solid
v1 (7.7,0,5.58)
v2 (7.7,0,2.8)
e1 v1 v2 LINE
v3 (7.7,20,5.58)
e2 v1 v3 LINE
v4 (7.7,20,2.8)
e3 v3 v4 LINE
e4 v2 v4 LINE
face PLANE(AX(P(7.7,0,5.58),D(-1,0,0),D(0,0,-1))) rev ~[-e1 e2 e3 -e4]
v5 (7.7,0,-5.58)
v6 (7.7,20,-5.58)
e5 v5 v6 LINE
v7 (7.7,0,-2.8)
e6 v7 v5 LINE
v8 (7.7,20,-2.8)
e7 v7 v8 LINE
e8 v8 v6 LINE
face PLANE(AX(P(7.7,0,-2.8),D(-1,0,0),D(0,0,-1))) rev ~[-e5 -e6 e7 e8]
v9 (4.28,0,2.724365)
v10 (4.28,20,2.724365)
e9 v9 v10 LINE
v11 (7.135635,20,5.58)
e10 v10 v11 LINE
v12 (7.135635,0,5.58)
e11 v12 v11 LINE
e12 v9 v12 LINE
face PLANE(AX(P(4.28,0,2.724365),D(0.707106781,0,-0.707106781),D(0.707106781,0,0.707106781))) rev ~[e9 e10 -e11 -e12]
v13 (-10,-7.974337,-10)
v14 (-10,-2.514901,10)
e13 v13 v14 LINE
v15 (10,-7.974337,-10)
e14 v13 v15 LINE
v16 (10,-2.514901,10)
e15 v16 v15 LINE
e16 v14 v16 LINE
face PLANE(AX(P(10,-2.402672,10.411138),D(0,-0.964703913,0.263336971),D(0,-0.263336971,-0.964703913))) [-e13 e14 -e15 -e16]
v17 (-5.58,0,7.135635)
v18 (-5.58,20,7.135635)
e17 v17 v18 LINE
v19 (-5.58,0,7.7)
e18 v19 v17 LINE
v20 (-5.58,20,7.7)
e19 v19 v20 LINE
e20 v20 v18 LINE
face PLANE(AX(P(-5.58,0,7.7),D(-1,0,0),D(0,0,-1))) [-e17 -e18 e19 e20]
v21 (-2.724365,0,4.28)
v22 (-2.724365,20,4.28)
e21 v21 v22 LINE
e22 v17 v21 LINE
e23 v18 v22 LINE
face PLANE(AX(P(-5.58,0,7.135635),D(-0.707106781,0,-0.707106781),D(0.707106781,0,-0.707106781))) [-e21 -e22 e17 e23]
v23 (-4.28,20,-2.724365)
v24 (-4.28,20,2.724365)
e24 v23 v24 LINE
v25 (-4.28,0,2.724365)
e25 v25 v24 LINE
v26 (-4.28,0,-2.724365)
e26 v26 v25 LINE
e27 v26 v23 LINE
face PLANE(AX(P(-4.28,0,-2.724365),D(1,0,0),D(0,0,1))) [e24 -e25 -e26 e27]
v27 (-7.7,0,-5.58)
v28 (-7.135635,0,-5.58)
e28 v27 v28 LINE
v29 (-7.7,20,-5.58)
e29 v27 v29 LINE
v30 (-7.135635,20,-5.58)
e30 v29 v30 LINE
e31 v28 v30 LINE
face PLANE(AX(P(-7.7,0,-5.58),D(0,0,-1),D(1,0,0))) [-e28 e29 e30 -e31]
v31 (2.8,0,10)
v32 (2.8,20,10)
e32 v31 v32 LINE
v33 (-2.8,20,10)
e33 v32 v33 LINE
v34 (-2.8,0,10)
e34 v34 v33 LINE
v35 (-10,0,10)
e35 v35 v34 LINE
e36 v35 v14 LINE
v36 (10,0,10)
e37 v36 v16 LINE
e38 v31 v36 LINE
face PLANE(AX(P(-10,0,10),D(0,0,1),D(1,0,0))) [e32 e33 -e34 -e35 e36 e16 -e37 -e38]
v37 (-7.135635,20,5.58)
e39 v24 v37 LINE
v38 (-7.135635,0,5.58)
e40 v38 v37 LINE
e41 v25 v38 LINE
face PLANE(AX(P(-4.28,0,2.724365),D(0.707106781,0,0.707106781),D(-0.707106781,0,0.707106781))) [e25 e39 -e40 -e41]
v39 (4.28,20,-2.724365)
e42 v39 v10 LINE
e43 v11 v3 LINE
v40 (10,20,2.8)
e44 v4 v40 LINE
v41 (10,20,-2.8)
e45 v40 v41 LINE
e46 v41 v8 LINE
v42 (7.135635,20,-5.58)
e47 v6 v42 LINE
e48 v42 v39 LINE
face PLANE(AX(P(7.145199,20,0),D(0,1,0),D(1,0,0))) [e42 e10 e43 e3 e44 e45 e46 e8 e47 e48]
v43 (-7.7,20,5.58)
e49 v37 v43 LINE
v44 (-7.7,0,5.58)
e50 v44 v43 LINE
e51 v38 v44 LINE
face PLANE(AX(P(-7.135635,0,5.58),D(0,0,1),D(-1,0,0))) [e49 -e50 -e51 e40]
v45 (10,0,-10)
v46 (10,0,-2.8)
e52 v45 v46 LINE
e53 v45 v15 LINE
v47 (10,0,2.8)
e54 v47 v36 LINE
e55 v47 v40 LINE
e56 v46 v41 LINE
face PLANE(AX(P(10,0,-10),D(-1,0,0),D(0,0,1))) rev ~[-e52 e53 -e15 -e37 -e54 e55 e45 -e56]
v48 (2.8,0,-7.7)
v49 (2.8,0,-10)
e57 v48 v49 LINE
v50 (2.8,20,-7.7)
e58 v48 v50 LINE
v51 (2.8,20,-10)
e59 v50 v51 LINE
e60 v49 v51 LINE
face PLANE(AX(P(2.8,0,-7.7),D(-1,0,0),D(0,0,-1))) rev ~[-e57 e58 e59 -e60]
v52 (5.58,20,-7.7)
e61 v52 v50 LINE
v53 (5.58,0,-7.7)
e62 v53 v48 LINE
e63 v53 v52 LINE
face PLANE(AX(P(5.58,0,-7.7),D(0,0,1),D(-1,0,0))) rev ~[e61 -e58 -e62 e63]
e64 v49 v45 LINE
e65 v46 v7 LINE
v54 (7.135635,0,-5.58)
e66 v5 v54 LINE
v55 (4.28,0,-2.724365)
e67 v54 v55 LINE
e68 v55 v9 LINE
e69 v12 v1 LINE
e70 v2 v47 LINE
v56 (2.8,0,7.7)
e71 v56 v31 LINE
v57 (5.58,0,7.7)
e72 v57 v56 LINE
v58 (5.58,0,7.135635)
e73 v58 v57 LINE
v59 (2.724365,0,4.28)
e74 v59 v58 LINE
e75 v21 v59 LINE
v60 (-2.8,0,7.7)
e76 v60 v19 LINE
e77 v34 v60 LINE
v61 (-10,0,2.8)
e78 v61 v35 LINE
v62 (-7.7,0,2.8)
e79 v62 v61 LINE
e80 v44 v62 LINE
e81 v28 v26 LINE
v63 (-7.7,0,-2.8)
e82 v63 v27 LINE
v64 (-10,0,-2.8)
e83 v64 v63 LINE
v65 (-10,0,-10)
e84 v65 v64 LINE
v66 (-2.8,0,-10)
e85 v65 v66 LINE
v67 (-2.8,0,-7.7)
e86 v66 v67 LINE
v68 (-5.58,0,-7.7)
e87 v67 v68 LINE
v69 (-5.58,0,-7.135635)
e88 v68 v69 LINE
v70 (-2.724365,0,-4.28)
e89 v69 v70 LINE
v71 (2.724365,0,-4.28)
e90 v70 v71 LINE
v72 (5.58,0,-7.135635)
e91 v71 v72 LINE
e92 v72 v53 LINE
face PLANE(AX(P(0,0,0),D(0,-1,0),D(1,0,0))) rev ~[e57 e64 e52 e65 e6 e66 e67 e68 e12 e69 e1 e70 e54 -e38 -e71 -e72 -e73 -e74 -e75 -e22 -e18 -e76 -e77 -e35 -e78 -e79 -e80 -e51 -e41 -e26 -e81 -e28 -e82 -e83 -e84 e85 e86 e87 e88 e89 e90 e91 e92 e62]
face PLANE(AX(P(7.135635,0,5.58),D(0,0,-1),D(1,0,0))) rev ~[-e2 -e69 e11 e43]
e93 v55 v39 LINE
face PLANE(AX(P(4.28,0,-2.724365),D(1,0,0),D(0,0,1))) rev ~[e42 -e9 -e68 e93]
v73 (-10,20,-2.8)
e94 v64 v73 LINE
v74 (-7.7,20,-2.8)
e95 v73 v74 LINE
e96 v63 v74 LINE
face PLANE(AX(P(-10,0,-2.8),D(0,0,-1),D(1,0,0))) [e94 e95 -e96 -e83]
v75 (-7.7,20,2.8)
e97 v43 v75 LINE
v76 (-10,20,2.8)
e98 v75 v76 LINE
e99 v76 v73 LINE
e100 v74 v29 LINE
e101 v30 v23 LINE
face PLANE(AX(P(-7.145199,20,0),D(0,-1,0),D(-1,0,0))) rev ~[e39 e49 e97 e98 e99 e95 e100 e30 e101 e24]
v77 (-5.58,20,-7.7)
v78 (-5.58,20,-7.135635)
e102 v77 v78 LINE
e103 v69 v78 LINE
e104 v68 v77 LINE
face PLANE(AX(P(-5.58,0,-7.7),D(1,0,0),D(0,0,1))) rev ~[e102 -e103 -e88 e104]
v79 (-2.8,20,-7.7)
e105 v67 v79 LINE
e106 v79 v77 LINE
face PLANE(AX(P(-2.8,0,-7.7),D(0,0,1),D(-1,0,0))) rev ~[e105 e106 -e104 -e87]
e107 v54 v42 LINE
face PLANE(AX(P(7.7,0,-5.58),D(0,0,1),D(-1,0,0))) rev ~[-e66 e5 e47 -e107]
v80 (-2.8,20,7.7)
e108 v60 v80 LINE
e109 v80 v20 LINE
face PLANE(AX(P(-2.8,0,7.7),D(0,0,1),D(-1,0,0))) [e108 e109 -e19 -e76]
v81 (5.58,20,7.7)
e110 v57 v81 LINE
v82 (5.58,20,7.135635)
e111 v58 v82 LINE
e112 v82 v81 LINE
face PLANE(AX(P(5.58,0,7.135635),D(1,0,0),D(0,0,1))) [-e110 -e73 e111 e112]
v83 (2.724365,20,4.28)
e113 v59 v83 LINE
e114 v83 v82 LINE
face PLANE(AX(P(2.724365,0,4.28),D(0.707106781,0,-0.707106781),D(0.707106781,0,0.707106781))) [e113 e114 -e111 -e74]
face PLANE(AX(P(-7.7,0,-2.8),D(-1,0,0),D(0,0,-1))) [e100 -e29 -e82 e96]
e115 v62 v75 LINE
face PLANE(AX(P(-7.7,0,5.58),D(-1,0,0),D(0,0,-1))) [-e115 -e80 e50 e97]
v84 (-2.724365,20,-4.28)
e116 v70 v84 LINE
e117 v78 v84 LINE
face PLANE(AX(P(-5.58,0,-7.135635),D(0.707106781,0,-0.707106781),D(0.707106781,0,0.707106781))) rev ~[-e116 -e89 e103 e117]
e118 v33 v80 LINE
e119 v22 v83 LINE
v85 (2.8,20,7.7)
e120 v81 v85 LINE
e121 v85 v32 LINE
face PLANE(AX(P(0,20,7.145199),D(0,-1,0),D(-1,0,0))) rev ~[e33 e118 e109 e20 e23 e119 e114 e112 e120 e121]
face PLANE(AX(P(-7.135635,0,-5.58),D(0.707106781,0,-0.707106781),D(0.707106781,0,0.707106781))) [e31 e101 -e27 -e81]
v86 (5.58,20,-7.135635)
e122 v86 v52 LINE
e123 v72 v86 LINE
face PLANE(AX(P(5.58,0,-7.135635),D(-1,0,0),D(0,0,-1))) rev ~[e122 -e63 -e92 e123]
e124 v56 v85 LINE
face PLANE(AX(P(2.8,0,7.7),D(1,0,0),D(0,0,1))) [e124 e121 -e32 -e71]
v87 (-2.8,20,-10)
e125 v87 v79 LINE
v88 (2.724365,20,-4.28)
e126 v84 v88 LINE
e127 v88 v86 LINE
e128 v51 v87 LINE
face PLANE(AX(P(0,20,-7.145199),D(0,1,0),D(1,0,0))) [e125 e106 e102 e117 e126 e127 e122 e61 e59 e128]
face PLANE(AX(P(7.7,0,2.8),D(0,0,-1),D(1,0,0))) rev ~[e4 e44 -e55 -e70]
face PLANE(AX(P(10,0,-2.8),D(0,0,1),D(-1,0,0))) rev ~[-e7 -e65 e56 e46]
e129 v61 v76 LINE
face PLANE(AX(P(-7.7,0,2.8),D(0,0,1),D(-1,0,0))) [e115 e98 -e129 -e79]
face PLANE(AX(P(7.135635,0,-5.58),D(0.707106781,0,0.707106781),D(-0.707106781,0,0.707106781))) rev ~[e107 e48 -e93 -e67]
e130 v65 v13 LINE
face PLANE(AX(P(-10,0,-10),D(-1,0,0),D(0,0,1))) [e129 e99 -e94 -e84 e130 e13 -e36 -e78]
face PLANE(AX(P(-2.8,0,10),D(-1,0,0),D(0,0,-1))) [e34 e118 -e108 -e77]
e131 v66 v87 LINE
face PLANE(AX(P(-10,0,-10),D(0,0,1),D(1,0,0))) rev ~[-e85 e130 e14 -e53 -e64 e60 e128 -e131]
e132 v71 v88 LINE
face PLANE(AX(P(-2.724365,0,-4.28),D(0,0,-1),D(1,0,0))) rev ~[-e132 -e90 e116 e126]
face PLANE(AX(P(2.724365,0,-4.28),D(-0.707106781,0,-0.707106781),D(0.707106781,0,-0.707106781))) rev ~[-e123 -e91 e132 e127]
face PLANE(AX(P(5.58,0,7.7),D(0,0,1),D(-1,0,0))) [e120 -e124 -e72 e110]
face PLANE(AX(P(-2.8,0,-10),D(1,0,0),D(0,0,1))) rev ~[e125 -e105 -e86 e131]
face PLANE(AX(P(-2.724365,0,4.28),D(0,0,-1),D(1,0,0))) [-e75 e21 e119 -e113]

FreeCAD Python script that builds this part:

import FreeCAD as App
import Part
import Sketcher


def add_polygon(sketch, points):
    """Adds a closed chain of lines whose ends are joined by coincident constraints."""
    first, n = sketch.GeometryCount, len(points)
    for a, b in zip(points, points[1:] + points[:1]):
        sketch.addGeometry(Part.LineSegment(App.Vector(*a, 0), App.Vector(*b, 0)), False)
    for i in range(n):
        sketch.addConstraint(Sketcher.Constraint("Coincident", first + i, 2, first + (i + 1) % n, 1))

doc = App.newDocument("Part")
body = doc.addObject("PartDesign::Body", "Body")

sketch1 = doc.addObject("Sketcher::SketchObject", "Sketch")
body.addObject(sketch1)
sketch1.AttachmentSupport = (doc.XZ_Plane, [""])
sketch1.MapMode = "FlatFace"
add_polygon(sketch1, [(-10, -2.8), (-10, 2.8), (-7.7, 2.8), (-7.7, 5.58), (-7.135635, 5.58), (-4.28, 2.724365), (-4.28, -2.724365), (-7.135635, -5.58), (-7.7, -5.58), (-7.7, -2.8)])
sketch1.addConstraint([
    Sketcher.Constraint("Vertical", 0),
    Sketcher.Constraint("Horizontal", 1),
    Sketcher.Constraint("Vertical", 2),
    Sketcher.Constraint("Horizontal", 3),
    Sketcher.Constraint("Vertical", 5),
    Sketcher.Constraint("Horizontal", 7),
    Sketcher.Constraint("Vertical", 8),
    Sketcher.Constraint("Horizontal", 9),
    Sketcher.Constraint("Symmetric", 3, 2, 6, 2, -1),
    Sketcher.Constraint("Symmetric", 1, 2, 8, 2, -1),
    Sketcher.Constraint("Perpendicular", 4, 6),
    Sketcher.Constraint("Equal", 4, 6),
    Sketcher.Constraint("DistanceX", 1, 1, 1, 2, 2.3),
    Sketcher.Constraint("DistanceY", 0, 1, 0, 2, 5.6),
    Sketcher.Constraint("DistanceX", 0, 2, -1, 1, 10.0),
    Sketcher.Constraint("DistanceY", 2, 1, 2, 2, 2.78),
    Sketcher.Constraint("DistanceX", 4, 2, -1, 1, 4.28),
    Sketcher.Constraint("DistanceY", 5, 2, 5, 1, 5.44873),
])
pad1 = doc.addObject("PartDesign::Pad", "Pad")
body.addObject(pad1)
pad1.Profile = sketch1
pad1.Length = 20
pad1.Reversed = True
body2 = doc.addObject("PartDesign::Body", "Body001")

sketch2 = doc.addObject("Sketcher::SketchObject", "Sketch001")
body2.addObject(sketch2)
sketch2.AttachmentSupport = (doc.getObject("XZ_Plane001"), [""])
sketch2.MapMode = "FlatFace"
add_polygon(sketch2, [(10, -2.8), (7.7, -2.8), (7.7, -5.58), (7.135635, -5.58), (4.28, -2.724365), (4.28, 2.724365), (7.135635, 5.58), (7.7, 5.58), (7.7, 2.8), (10, 2.8)])
sketch2.addConstraint([
    Sketcher.Constraint("Horizontal", 0),
    Sketcher.Constraint("Vertical", 1),
    Sketcher.Constraint("Horizontal", 2),
    Sketcher.Constraint("Vertical", 4),
    Sketcher.Constraint("Horizontal", 6),
    Sketcher.Constraint("Vertical", 7),
    Sketcher.Constraint("Horizontal", 8),
    Sketcher.Constraint("Vertical", 9),
    Sketcher.Constraint("Symmetric", 2, 2, 5, 2, -1),
    Sketcher.Constraint("Symmetric", 0, 2, 7, 2, -1),
    Sketcher.Constraint("Perpendicular", 3, 5),
    Sketcher.Constraint("Equal", 3, 5),
    Sketcher.Constraint("DistanceX", 0, 2, 0, 1, 2.3),
    Sketcher.Constraint("DistanceY", 9, 2, 9, 1, 5.6),
    Sketcher.Constraint("DistanceX", -1, 1, 8, 2, 10.0),
    Sketcher.Constraint("DistanceY", 1, 2, 1, 1, 2.78),
    Sketcher.Constraint("DistanceX", -1, 1, 3, 2, 4.28),
    Sketcher.Constraint("DistanceY", 4, 1, 4, 2, 5.44873),
])
pad2 = doc.addObject("PartDesign::Pad", "Pad001")
body2.addObject(pad2)
pad2.Profile = sketch2
pad2.Length = 20
pad2.Reversed = True
body3 = doc.addObject("PartDesign::Body", "Body002")

sketch3 = doc.addObject("Sketcher::SketchObject", "Sketch002")
body3.addObject(sketch3)
sketch3.AttachmentSupport = (doc.getObject("XZ_Plane002"), [""])
sketch3.MapMode = "FlatFace"
add_polygon(sketch3, [(-2.8, 10), (2.8, 10), (2.8, 7.7), (5.58, 7.7), (5.58, 7.135635), (2.724365, 4.28), (-2.724365, 4.28), (-5.58, 7.135635), (-5.58, 7.7), (-2.8, 7.7)])
sketch3.addConstraint([
    Sketcher.Constraint("Horizontal", 0),
    Sketcher.Constraint("Vertical", 1),
    Sketcher.Constraint("Horizontal", 2),
    Sketcher.Constraint("Vertical", 3),
    Sketcher.Constraint("Horizontal", 5),
    Sketcher.Constraint("Vertical", 7),
    Sketcher.Constraint("Horizontal", 8),
    Sketcher.Constraint("Vertical", 9),
    Sketcher.Constraint("Symmetric", 3, 2, 6, 2, -2),
    Sketcher.Constraint("Symmetric", 1, 2, 8, 2, -2),
    Sketcher.Constraint("Perpendicular", 4, 6),
    Sketcher.Constraint("Equal", 4, 6),
    Sketcher.Constraint("DistanceX", 0, 1, 0, 2, 5.6),
    Sketcher.Constraint("DistanceY", 1, 2, 1, 1, 2.3),
    Sketcher.Constraint("DistanceY", -1, 1, 0, 2, 10.0),
    Sketcher.Constraint("DistanceX", 2, 1, 2, 2, 2.78),
    Sketcher.Constraint("DistanceY", -1, 1, 4, 2, 4.28),
    Sketcher.Constraint("DistanceX", 5, 2, 5, 1, 5.44873),
])
pad3 = doc.addObject("PartDesign::Pad", "Pad002")
body3.addObject(pad3)
pad3.Profile = sketch3
pad3.Length = 20
pad3.Reversed = True
body4 = doc.addObject("PartDesign::Body", "Body003")

sketch4 = doc.addObject("Sketcher::SketchObject", "Sketch003")
body4.addObject(sketch4)
sketch4.AttachmentSupport = (doc.getObject("XZ_Plane003"), [""])
sketch4.MapMode = "FlatFace"
add_polygon(sketch4, [(-2.8, -10), (-2.8, -7.7), (-5.58, -7.7), (-5.58, -7.135635), (-2.724365, -4.28), (2.724365, -4.28), (5.58, -7.135635), (5.58, -7.7), (2.8, -7.7), (2.8, -10)])
sketch4.addConstraint([
    Sketcher.Constraint("Vertical", 0),
    Sketcher.Constraint("Horizontal", 1),
    Sketcher.Constraint("Vertical", 2),
    Sketcher.Constraint("Horizontal", 4),
    Sketcher.Constraint("Vertical", 6),
    Sketcher.Constraint("Horizontal", 7),
    Sketcher.Constraint("Vertical", 8),
    Sketcher.Constraint("Horizontal", 9),
    Sketcher.Constraint("Symmetric", 2, 2, 5, 2, -2),
    Sketcher.Constraint("Symmetric", 0, 2, 7, 2, -2),
    Sketcher.Constraint("Perpendicular", 3, 5),
    Sketcher.Constraint("Equal", 3, 5),
    Sketcher.Constraint("DistanceX", 9, 2, 9, 1, 5.6),
    Sketcher.Constraint("DistanceY", 0, 1, 0, 2, 2.3),
    Sketcher.Constraint("DistanceY", 8, 2, -1, 1, 10.0),
    Sketcher.Constraint("DistanceX", 1, 2, 1, 1, 2.78),
    Sketcher.Constraint("DistanceY", 3, 2, -1, 1, 4.28),
    Sketcher.Constraint("DistanceX", 4, 1, 4, 2, 5.44873),
])
pad4 = doc.addObject("PartDesign::Pad", "Pad003")
body4.addObject(pad4)
pad4.Profile = sketch4
pad4.Length = 20
pad4.Reversed = True
body.AllowCompound = True
doc.recompute()

boolean = doc.addObject("PartDesign::Boolean", "Boolean")
body.addObject(boolean)
boolean.Type = "Fuse"
boolean.addObjects([body2])
doc.recompute()

boolean2 = doc.addObject("PartDesign::Boolean", "Boolean001")
body.addObject(boolean2)
boolean2.Type = "Fuse"
boolean2.addObjects([body3])
doc.recompute()

boolean3 = doc.addObject("PartDesign::Boolean", "Boolean002")
body.addObject(boolean3)
boolean3.Type = "Fuse"
boolean3.addObjects([body4])

sketch5 = doc.addObject("Sketcher::SketchObject", "Sketch004")
body.addObject(sketch5)
sketch5.AttachmentSupport = (doc.XZ_Plane, [""])
sketch5.MapMode = "FlatFace"
add_polygon(sketch5, [(-10, 10), (-10, -10), (10, -10), (10, 10)])
sketch5.addConstraint([
    Sketcher.Constraint("Vertical", 0),
    Sketcher.Constraint("Horizontal", 1),
    Sketcher.Constraint("Vertical", 2),
    Sketcher.Constraint("Horizontal", 3),
    Sketcher.Constraint("Symmetric", 0, 2, 2, 2, -1, 1),
    Sketcher.Constraint("Equal", 3, 0),
    Sketcher.Constraint("DistanceX", 1, 1, 1, 2, 20.0),
])
pad5 = doc.addObject("PartDesign::Pad", "Pad004")
body.addObject(pad5)
pad5.Profile = sketch5
pad5.Length = 20

sketch6 = doc.addObject("Sketcher::SketchObject", "Sketch005")
body.addObject(sketch6)
sketch6.AttachmentSupport = (doc.YZ_Plane, [""])
sketch6.MapMode = "FlatFace"
sketch6.AttachmentOffset = App.Placement(App.Vector(0, 0, 10), App.Rotation())
add_polygon(sketch6, [(-38.34555, -10.596674), (-8.137212, -10.596674), (-2.402672, 10.411138), (-38.34555, 10.411138)])
sketch6.addConstraint([
    Sketcher.Constraint("Horizontal", 0),
    Sketcher.Constraint("Horizontal", 2),
    Sketcher.Constraint("Vertical", 3),
    Sketcher.Constraint("DistanceX", 0, 1, 0, 2, 30.208337),
    Sketcher.Constraint("DistanceX", 2, 2, 2, 1, 35.942878),
    Sketcher.Constraint("DistanceY", 3, 2, 3, 1, 21.007812),
    Sketcher.Constraint("DistanceX", 1, 2, -1, 1, 2.402672),
    Sketcher.Constraint("DistanceY", -1, 1, 1, 2, 10.411138),
])
pocket1 = doc.addObject("PartDesign::Pocket", "Pocket")
body.addObject(pocket1)
pocket1.Profile = sketch6
pocket1.Type = "ThroughAll"

doc.recompute()
